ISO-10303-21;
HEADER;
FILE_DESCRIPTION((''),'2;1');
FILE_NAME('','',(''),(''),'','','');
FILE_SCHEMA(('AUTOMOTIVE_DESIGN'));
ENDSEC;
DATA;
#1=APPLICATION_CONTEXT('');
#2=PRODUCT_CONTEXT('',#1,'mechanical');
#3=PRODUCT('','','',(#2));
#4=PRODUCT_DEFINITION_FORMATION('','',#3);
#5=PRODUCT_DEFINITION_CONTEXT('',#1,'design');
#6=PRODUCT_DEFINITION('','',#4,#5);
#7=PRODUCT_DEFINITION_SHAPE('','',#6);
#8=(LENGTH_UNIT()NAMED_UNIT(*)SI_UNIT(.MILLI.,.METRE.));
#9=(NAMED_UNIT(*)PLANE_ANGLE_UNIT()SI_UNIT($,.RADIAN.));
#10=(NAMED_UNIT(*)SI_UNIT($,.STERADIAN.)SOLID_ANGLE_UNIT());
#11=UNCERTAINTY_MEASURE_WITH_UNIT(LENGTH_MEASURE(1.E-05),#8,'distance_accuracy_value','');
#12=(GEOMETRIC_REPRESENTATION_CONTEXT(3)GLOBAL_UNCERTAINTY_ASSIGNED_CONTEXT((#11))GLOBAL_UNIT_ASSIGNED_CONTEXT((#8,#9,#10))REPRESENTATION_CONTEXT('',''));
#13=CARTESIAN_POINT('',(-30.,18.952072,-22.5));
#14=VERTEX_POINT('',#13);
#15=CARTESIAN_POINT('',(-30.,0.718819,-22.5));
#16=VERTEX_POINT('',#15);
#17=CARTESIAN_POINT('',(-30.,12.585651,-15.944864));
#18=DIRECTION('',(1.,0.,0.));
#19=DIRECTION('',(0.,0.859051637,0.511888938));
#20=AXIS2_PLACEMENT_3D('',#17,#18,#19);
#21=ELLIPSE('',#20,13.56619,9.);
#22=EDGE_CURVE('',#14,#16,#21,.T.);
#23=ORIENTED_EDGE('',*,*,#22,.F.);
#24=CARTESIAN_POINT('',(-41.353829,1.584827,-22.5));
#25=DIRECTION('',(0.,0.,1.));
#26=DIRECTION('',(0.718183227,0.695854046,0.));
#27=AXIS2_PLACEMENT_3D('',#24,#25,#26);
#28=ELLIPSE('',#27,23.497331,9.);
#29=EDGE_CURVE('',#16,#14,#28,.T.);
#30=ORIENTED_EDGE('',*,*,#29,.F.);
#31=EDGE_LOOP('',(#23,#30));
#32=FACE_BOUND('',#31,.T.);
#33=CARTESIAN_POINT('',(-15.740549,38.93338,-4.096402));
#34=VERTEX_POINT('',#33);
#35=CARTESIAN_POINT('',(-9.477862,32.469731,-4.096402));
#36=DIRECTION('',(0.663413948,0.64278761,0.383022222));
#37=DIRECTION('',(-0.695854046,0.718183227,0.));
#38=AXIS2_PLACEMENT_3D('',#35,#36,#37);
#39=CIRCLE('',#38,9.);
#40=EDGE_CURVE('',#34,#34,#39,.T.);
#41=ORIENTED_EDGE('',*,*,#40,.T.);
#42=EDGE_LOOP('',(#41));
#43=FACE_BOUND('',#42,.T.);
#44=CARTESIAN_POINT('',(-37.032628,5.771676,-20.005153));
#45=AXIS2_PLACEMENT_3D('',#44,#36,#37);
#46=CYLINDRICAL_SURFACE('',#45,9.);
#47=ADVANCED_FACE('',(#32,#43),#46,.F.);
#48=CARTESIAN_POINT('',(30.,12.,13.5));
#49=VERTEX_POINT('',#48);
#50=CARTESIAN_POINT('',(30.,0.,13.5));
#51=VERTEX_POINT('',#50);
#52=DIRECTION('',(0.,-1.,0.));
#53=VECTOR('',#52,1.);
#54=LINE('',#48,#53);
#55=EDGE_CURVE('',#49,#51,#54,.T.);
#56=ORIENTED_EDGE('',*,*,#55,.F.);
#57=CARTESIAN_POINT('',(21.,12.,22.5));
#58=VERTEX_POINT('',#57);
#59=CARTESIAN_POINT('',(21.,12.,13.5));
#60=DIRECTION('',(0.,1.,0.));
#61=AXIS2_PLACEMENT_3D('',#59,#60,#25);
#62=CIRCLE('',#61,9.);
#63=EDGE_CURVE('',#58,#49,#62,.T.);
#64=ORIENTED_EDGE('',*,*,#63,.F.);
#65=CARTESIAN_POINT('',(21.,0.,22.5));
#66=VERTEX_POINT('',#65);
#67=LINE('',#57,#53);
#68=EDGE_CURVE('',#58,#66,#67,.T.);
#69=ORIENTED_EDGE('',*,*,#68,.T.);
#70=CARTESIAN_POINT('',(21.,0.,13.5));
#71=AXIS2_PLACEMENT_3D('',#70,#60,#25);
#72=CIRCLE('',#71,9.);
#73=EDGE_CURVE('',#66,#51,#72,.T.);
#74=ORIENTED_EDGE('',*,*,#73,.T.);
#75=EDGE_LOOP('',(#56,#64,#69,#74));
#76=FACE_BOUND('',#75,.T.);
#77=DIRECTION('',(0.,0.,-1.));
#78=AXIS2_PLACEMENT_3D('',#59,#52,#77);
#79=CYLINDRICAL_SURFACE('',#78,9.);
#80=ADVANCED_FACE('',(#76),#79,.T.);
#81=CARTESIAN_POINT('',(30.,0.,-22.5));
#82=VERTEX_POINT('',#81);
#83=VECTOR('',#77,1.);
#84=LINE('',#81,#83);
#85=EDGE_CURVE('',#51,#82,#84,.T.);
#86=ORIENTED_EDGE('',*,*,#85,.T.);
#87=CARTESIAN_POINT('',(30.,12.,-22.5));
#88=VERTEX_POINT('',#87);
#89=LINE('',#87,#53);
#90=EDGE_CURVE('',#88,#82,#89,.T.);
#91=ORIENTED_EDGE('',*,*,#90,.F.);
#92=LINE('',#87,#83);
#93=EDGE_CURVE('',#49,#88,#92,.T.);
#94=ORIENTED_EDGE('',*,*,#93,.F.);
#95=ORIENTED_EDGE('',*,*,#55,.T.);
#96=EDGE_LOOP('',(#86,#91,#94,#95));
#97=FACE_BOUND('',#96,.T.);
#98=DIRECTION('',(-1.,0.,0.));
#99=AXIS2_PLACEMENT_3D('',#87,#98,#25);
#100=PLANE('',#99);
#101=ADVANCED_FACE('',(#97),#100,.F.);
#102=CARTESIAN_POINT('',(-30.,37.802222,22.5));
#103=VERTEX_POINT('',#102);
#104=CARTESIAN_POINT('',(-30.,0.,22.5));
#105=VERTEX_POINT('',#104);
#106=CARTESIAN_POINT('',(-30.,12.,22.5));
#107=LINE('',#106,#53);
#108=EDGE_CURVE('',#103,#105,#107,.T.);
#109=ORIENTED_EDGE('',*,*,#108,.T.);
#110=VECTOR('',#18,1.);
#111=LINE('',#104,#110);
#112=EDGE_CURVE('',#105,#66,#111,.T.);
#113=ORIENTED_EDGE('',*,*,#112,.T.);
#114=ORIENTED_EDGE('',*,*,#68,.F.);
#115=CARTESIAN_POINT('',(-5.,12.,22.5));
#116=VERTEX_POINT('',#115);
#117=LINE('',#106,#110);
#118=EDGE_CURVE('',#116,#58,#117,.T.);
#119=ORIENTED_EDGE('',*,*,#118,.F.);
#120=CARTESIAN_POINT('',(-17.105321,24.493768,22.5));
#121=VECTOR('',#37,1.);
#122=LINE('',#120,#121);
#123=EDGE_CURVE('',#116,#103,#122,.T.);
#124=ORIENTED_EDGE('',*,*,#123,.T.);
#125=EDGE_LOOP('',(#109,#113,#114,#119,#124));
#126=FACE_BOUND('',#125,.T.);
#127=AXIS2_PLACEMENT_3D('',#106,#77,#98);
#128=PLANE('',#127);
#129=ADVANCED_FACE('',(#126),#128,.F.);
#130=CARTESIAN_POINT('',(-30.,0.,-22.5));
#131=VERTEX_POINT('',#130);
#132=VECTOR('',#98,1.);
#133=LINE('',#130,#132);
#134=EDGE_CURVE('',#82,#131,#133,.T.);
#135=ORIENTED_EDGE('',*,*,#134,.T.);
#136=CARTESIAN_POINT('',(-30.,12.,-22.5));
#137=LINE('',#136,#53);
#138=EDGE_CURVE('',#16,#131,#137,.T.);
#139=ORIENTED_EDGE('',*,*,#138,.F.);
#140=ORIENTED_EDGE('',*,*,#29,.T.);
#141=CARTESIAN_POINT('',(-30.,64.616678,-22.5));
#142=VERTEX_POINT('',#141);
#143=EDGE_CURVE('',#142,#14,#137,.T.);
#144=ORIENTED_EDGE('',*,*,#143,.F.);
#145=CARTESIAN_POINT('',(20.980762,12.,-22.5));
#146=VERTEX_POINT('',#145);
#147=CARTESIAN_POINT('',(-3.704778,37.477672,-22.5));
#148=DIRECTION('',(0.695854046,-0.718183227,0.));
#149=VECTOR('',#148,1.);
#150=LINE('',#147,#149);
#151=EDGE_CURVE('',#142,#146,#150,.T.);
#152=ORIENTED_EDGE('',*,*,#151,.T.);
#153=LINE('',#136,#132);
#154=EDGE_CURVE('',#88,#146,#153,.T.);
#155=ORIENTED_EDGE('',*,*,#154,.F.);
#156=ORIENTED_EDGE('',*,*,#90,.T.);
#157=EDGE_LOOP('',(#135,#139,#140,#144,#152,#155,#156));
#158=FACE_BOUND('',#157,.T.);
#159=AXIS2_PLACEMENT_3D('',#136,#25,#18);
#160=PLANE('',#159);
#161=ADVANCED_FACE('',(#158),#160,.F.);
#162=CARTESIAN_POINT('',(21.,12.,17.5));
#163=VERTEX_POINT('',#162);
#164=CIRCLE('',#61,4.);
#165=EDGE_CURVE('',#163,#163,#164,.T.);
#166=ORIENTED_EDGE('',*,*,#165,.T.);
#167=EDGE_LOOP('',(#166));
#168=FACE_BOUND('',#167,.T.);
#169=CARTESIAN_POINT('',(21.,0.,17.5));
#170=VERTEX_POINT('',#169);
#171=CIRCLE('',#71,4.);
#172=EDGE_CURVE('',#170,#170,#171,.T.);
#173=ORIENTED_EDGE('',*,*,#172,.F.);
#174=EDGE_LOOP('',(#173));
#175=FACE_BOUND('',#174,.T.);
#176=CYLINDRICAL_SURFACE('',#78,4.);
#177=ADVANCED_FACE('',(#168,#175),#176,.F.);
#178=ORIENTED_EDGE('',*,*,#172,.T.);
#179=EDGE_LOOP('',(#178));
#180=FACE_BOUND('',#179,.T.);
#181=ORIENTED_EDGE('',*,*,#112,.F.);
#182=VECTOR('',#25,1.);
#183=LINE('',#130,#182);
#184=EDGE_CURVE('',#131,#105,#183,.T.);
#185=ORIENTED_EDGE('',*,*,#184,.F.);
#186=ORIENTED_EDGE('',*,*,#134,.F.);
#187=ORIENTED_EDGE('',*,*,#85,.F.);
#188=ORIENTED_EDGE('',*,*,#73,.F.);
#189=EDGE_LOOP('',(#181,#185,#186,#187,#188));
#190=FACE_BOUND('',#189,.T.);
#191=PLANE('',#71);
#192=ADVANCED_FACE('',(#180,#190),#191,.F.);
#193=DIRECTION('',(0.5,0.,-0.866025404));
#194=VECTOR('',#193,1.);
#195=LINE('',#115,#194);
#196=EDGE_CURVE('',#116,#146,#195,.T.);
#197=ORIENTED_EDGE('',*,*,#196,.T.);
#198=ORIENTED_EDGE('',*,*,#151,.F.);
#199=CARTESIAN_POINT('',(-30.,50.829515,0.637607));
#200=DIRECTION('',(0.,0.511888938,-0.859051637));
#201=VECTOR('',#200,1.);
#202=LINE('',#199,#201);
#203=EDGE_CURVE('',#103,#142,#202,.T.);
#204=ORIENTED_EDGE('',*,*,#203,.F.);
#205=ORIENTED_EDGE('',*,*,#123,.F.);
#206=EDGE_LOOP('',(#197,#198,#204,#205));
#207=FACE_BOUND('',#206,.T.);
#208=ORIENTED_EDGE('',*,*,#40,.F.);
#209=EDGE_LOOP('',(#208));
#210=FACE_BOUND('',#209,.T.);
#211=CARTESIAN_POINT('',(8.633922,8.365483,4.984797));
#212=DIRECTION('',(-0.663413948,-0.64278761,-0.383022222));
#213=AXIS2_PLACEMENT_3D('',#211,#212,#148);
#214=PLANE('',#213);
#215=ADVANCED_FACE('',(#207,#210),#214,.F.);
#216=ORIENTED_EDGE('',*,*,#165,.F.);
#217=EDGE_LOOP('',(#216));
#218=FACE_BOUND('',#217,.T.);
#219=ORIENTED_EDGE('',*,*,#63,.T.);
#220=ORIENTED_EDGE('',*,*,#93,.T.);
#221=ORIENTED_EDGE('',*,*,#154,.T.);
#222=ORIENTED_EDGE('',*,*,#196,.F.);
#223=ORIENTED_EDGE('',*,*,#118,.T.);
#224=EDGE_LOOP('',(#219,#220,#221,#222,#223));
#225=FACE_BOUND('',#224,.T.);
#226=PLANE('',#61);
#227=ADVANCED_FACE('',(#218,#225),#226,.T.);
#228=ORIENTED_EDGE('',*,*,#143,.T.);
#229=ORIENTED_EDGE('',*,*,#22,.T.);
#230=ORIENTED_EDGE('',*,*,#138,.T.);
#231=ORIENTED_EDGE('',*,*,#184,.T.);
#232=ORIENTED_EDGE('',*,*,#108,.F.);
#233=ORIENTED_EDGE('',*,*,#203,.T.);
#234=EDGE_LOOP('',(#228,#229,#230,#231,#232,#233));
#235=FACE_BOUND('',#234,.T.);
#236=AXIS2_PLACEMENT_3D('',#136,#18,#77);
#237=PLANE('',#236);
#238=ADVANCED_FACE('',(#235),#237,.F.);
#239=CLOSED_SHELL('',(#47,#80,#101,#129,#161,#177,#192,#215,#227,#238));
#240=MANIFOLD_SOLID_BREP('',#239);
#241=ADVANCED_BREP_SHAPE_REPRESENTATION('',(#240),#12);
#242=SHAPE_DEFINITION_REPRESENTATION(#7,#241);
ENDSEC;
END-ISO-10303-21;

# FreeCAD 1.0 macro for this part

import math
import FreeCAD as App
import Part
import Sketcher

V = App.Vector
Q = App.Units.Quantity

doc = App.newDocument("Part")
params = doc.addObject("Spreadsheet::Sheet", "Params")
for row, (alias, value) in enumerate([
    ("sketch1_diameter", "8 mm"),
    ("sketch1_radius", "9 mm"),
    ("sketch1_width", "60 mm"),
    ("sketch1_height", "45 mm"),
    ("pad1_length", "12 mm"),
    ("sketch2_width", "25 mm"),
    ("sketch2_height", "45 mm"),
    ("pad2_length", "55 mm"),
    ("pocket1_length", "50 mm"),
    ("sketch4_diameter", "18 mm"),
], start=1):
    params.set(f"A{row}", alias)
    params.set(f"B{row}", "=" + value)
    params.setAlias(f"B{row}", alias)

body = doc.addObject("PartDesign::Body", "Body")

sketch1 = body.newObject("Sketcher::SketchObject", "Sketch")
sketch1.AttachmentSupport = (doc.getObject("XZ_Plane"), [""])
sketch1.MapMode = "FlatFace"
sketch1.addGeometry(Part.LineSegment(V(30, -22.5, 0), V(-30, -22.5, 0)), False)
sketch1.addGeometry(Part.LineSegment(V(-30, -22.5, 0), V(-30, 22.5, 0)), False)
sketch1.addGeometry(Part.LineSegment(V(-30, 22.5, 0), V(21, 22.5, 0)), False)
sketch1.addGeometry(Part.ArcOfCircle(Part.Circle(V(21, 13.5, 0), V(0, 0, 1), 9), math.radians(0), math.radians(90)), False)
sketch1.addGeometry(Part.LineSegment(V(30, 13.5, 0), V(30, -22.5, 0)), False)
sketch1.addGeometry(Part.Circle(V(21, 13.5, 0), V(0, 0, 1), 4), False)
sketch1.addConstraint(Sketcher.Constraint("Coincident", 0, 2, 1, 1))
sketch1.addConstraint(Sketcher.Constraint("Coincident", 1, 2, 2, 1))
sketch1.addConstraint(Sketcher.Constraint("Tangent", 2, 2, 3, 2))
sketch1.addConstraint(Sketcher.Constraint("Tangent", 3, 1, 4, 1))
sketch1.addConstraint(Sketcher.Constraint("Coincident", 4, 2, 0, 1))
sketch1.addConstraint(Sketcher.Constraint("Horizontal", 0))
sketch1.addConstraint(Sketcher.Constraint("Vertical", 1))
sketch1.addConstraint(Sketcher.Constraint("Horizontal", 2))
sketch1.addConstraint(Sketcher.Constraint("Vertical", 4))
sketch1.addConstraint(Sketcher.Constraint("Coincident", 5, 3, 3, 3))
sketch1.addConstraint(Sketcher.Constraint("Symmetric", 1, 2, 4, 2, -1, 1))
sketch1.addConstraint(Sketcher.Constraint("Diameter", 5, 8.0))
sketch1.addConstraint(Sketcher.Constraint("Radius", 3, 9.0))
sketch1.addConstraint(Sketcher.Constraint("DistanceX", 0, 2, 0, 1, 60.0))
sketch1.addConstraint(Sketcher.Constraint("DistanceY", 1, 1, 1, 2, 45.0))
sketch1.setExpression("Constraints[11]", "Params.sketch1_diameter")
sketch1.setExpression("Constraints[12]", "Params.sketch1_radius")
sketch1.setExpression("Constraints[13]", "Params.sketch1_width")
sketch1.setExpression("Constraints[14]", "Params.sketch1_height")
pad1 = body.newObject("PartDesign::Pad", "Pad")
pad1.Profile = sketch1
pad1.setExpression("Length", "Params.pad1_length")
pad1.Reversed = True

sketch2 = body.newObject("Sketcher::SketchObject", "Sketch001")
sketch2.AttachmentSupport = (doc.getObject("XZ_Plane"), [""])
sketch2.MapMode = "FlatFace"
sketch2.AttachmentOffset = App.Placement(V(0, 0, -12), App.Rotation())
sketch2.addGeometry(Part.LineSegment(V(-5, 22, 0), V(21, -22, 0)), False)
sketch2.addGeometry(Part.LineSegment(V(21, -22, 0), V(-30, -22, 0)), False)
sketch2.addGeometry(Part.LineSegment(V(-30, -22, 0), V(-30, 22, 0)), False)
sketch2.addGeometry(Part.LineSegment(V(-30, 22, 0), V(-5, 22, 0)), False)
sketch2.addConstraint(Sketcher.Constraint("Coincident", 0, 2, 1, 1))
sketch2.addConstraint(Sketcher.Constraint("Coincident", 1, 2, 2, 1))
sketch2.addConstraint(Sketcher.Constraint("Coincident", 2, 2, 3, 1))
sketch2.addConstraint(Sketcher.Constraint("Coincident", 3, 2, 0, 1))
sketch2.addConstraint(Sketcher.Constraint("Horizontal", 1))
sketch2.addConstraint(Sketcher.Constraint("Vertical", 2))
sketch2.addConstraint(Sketcher.Constraint("Horizontal", 3))
sketch2.addConstraint(Sketcher.Constraint("DistanceX", 3, 1, 3, 2, 25.0))
sketch2.addConstraint(Sketcher.Constraint("DistanceY", 2, 1, 2, 2, 45.0))
sketch2.addConstraint(Sketcher.Constraint("Angle", 0, Q("-60 deg")))
sketch2.addConstraint(Sketcher.Constraint("DistanceX", 1, 2, -1, 1, 30.0))
sketch2.addConstraint(Sketcher.Constraint("DistanceY", 0, 2, -1, 1, 22.5))
sketch2.setExpression("Constraints[7]", "Params.sketch2_width")
sketch2.setExpression("Constraints[8]", "Params.sketch2_height")
pad2 = body.newObject("PartDesign::Pad", "Pad001")
pad2.Profile = sketch2
pad2.setExpression("Length", "Params.pad2_length")
pad2.Reversed = True

sketch3 = body.newObject("Sketcher::SketchObject", "Sketch002")
sketch3.Placement = App.Placement(V(8.633922, 8.365483, 4.984797), App.Rotation(V(0.5, 0, -0.866025404), V(0.5566704, -0.766044443, 0.321393805), V(-0.663413948, -0.64278761, -0.383022222), "ZXY"))
sketch3.addGeometry(Part.LineSegment(V(30, -5, 0), V(-22, -5, 0)), False)
sketch3.addGeometry(Part.LineSegment(V(-22, -5, 0), V(-55, -74, 0)), False)
sketch3.addGeometry(Part.LineSegment(V(-55, -74, 0), V(19, -97, 0)), False)
sketch3.addGeometry(Part.LineSegment(V(19, -97, 0), V(47, -8, 0)), False)
sketch3.addGeometry(Part.LineSegment(V(47, -8, 0), V(30, -5, 0)), False)
sketch3.addConstraint(Sketcher.Constraint("Coincident", 0, 2, 1, 1))
sketch3.addConstraint(Sketcher.Constraint("Coincident", 1, 2, 2, 1))
sketch3.addConstraint(Sketcher.Constraint("Coincident", 2, 2, 3, 1))
sketch3.addConstraint(Sketcher.Constraint("Coincident", 3, 2, 4, 1))
sketch3.addConstraint(Sketcher.Constraint("Coincident", 4, 2, 0, 1))
sketch3.addConstraint(Sketcher.Constraint("Horizontal", 0))
sketch3.addConstraint(Sketcher.Constraint("Perpendicular", 2, 3))
sketch3.addConstraint(Sketcher.Constraint("DistanceX", 2, 2, 4, 2, 11.375198))
sketch3.addConstraint(Sketcher.Constraint("Distance", 2, 77.38721))
sketch3.addConstraint(Sketcher.Constraint("Distance", 3, 93.723148))
sketch3.addConstraint(Sketcher.Constraint("DistanceX", 0, 2, 0, 1, 51.961524))
sketch3.addConstraint(Sketcher.Constraint("DistanceX", 0, 2, -1, 1, 21.985572))
sketch3.addConstraint(Sketcher.Constraint("DistanceX", 1, 2, -1, 1, 55.18455))
sketch3.addConstraint(Sketcher.Constraint("DistanceY", 3, 2, 0, 2, 3.014689))
sketch3.addConstraint(Sketcher.Constraint("DistanceY", 0, 2, -1, 1, 4.744525))
pocket1 = body.newObject("PartDesign::Pocket", "Pocket")
pocket1.Profile = sketch3
pocket1.setExpression("Length", "Params.pocket1_length")

sketch4 = body.newObject("Sketcher::SketchObject", "Sketch003")
sketch4.Placement = App.Placement(V(8.633922, 8.365483, 4.984797), App.Rotation(V(0.275080135, 0.266527562, -0.923739129), V(-0.695854046, 0.718183227, 0), V(0.663413948, 0.64278761, 0.383022222), "ZXY"))
sketch4.addGeometry(Part.Circle(V(10, 30, 0), V(0, 0, 1), 9), False)
sketch4.addConstraint(Sketcher.Constraint("Diameter", 0, 18.0))
sketch4.addConstraint(Sketcher.Constraint("DistanceX", -1, 1, 0, 3, 9.830913))
sketch4.addConstraint(Sketcher.Constraint("DistanceY", -1, 1, 0, 3, 29.914425))
sketch4.setExpression("Constraints[0]", "Params.sketch4_diameter")
pocket2 = body.newObject("PartDesign::Pocket", "Pocket001")
pocket2.Profile = sketch4
pocket2.Type = "ThroughAll"

doc.recompute()
